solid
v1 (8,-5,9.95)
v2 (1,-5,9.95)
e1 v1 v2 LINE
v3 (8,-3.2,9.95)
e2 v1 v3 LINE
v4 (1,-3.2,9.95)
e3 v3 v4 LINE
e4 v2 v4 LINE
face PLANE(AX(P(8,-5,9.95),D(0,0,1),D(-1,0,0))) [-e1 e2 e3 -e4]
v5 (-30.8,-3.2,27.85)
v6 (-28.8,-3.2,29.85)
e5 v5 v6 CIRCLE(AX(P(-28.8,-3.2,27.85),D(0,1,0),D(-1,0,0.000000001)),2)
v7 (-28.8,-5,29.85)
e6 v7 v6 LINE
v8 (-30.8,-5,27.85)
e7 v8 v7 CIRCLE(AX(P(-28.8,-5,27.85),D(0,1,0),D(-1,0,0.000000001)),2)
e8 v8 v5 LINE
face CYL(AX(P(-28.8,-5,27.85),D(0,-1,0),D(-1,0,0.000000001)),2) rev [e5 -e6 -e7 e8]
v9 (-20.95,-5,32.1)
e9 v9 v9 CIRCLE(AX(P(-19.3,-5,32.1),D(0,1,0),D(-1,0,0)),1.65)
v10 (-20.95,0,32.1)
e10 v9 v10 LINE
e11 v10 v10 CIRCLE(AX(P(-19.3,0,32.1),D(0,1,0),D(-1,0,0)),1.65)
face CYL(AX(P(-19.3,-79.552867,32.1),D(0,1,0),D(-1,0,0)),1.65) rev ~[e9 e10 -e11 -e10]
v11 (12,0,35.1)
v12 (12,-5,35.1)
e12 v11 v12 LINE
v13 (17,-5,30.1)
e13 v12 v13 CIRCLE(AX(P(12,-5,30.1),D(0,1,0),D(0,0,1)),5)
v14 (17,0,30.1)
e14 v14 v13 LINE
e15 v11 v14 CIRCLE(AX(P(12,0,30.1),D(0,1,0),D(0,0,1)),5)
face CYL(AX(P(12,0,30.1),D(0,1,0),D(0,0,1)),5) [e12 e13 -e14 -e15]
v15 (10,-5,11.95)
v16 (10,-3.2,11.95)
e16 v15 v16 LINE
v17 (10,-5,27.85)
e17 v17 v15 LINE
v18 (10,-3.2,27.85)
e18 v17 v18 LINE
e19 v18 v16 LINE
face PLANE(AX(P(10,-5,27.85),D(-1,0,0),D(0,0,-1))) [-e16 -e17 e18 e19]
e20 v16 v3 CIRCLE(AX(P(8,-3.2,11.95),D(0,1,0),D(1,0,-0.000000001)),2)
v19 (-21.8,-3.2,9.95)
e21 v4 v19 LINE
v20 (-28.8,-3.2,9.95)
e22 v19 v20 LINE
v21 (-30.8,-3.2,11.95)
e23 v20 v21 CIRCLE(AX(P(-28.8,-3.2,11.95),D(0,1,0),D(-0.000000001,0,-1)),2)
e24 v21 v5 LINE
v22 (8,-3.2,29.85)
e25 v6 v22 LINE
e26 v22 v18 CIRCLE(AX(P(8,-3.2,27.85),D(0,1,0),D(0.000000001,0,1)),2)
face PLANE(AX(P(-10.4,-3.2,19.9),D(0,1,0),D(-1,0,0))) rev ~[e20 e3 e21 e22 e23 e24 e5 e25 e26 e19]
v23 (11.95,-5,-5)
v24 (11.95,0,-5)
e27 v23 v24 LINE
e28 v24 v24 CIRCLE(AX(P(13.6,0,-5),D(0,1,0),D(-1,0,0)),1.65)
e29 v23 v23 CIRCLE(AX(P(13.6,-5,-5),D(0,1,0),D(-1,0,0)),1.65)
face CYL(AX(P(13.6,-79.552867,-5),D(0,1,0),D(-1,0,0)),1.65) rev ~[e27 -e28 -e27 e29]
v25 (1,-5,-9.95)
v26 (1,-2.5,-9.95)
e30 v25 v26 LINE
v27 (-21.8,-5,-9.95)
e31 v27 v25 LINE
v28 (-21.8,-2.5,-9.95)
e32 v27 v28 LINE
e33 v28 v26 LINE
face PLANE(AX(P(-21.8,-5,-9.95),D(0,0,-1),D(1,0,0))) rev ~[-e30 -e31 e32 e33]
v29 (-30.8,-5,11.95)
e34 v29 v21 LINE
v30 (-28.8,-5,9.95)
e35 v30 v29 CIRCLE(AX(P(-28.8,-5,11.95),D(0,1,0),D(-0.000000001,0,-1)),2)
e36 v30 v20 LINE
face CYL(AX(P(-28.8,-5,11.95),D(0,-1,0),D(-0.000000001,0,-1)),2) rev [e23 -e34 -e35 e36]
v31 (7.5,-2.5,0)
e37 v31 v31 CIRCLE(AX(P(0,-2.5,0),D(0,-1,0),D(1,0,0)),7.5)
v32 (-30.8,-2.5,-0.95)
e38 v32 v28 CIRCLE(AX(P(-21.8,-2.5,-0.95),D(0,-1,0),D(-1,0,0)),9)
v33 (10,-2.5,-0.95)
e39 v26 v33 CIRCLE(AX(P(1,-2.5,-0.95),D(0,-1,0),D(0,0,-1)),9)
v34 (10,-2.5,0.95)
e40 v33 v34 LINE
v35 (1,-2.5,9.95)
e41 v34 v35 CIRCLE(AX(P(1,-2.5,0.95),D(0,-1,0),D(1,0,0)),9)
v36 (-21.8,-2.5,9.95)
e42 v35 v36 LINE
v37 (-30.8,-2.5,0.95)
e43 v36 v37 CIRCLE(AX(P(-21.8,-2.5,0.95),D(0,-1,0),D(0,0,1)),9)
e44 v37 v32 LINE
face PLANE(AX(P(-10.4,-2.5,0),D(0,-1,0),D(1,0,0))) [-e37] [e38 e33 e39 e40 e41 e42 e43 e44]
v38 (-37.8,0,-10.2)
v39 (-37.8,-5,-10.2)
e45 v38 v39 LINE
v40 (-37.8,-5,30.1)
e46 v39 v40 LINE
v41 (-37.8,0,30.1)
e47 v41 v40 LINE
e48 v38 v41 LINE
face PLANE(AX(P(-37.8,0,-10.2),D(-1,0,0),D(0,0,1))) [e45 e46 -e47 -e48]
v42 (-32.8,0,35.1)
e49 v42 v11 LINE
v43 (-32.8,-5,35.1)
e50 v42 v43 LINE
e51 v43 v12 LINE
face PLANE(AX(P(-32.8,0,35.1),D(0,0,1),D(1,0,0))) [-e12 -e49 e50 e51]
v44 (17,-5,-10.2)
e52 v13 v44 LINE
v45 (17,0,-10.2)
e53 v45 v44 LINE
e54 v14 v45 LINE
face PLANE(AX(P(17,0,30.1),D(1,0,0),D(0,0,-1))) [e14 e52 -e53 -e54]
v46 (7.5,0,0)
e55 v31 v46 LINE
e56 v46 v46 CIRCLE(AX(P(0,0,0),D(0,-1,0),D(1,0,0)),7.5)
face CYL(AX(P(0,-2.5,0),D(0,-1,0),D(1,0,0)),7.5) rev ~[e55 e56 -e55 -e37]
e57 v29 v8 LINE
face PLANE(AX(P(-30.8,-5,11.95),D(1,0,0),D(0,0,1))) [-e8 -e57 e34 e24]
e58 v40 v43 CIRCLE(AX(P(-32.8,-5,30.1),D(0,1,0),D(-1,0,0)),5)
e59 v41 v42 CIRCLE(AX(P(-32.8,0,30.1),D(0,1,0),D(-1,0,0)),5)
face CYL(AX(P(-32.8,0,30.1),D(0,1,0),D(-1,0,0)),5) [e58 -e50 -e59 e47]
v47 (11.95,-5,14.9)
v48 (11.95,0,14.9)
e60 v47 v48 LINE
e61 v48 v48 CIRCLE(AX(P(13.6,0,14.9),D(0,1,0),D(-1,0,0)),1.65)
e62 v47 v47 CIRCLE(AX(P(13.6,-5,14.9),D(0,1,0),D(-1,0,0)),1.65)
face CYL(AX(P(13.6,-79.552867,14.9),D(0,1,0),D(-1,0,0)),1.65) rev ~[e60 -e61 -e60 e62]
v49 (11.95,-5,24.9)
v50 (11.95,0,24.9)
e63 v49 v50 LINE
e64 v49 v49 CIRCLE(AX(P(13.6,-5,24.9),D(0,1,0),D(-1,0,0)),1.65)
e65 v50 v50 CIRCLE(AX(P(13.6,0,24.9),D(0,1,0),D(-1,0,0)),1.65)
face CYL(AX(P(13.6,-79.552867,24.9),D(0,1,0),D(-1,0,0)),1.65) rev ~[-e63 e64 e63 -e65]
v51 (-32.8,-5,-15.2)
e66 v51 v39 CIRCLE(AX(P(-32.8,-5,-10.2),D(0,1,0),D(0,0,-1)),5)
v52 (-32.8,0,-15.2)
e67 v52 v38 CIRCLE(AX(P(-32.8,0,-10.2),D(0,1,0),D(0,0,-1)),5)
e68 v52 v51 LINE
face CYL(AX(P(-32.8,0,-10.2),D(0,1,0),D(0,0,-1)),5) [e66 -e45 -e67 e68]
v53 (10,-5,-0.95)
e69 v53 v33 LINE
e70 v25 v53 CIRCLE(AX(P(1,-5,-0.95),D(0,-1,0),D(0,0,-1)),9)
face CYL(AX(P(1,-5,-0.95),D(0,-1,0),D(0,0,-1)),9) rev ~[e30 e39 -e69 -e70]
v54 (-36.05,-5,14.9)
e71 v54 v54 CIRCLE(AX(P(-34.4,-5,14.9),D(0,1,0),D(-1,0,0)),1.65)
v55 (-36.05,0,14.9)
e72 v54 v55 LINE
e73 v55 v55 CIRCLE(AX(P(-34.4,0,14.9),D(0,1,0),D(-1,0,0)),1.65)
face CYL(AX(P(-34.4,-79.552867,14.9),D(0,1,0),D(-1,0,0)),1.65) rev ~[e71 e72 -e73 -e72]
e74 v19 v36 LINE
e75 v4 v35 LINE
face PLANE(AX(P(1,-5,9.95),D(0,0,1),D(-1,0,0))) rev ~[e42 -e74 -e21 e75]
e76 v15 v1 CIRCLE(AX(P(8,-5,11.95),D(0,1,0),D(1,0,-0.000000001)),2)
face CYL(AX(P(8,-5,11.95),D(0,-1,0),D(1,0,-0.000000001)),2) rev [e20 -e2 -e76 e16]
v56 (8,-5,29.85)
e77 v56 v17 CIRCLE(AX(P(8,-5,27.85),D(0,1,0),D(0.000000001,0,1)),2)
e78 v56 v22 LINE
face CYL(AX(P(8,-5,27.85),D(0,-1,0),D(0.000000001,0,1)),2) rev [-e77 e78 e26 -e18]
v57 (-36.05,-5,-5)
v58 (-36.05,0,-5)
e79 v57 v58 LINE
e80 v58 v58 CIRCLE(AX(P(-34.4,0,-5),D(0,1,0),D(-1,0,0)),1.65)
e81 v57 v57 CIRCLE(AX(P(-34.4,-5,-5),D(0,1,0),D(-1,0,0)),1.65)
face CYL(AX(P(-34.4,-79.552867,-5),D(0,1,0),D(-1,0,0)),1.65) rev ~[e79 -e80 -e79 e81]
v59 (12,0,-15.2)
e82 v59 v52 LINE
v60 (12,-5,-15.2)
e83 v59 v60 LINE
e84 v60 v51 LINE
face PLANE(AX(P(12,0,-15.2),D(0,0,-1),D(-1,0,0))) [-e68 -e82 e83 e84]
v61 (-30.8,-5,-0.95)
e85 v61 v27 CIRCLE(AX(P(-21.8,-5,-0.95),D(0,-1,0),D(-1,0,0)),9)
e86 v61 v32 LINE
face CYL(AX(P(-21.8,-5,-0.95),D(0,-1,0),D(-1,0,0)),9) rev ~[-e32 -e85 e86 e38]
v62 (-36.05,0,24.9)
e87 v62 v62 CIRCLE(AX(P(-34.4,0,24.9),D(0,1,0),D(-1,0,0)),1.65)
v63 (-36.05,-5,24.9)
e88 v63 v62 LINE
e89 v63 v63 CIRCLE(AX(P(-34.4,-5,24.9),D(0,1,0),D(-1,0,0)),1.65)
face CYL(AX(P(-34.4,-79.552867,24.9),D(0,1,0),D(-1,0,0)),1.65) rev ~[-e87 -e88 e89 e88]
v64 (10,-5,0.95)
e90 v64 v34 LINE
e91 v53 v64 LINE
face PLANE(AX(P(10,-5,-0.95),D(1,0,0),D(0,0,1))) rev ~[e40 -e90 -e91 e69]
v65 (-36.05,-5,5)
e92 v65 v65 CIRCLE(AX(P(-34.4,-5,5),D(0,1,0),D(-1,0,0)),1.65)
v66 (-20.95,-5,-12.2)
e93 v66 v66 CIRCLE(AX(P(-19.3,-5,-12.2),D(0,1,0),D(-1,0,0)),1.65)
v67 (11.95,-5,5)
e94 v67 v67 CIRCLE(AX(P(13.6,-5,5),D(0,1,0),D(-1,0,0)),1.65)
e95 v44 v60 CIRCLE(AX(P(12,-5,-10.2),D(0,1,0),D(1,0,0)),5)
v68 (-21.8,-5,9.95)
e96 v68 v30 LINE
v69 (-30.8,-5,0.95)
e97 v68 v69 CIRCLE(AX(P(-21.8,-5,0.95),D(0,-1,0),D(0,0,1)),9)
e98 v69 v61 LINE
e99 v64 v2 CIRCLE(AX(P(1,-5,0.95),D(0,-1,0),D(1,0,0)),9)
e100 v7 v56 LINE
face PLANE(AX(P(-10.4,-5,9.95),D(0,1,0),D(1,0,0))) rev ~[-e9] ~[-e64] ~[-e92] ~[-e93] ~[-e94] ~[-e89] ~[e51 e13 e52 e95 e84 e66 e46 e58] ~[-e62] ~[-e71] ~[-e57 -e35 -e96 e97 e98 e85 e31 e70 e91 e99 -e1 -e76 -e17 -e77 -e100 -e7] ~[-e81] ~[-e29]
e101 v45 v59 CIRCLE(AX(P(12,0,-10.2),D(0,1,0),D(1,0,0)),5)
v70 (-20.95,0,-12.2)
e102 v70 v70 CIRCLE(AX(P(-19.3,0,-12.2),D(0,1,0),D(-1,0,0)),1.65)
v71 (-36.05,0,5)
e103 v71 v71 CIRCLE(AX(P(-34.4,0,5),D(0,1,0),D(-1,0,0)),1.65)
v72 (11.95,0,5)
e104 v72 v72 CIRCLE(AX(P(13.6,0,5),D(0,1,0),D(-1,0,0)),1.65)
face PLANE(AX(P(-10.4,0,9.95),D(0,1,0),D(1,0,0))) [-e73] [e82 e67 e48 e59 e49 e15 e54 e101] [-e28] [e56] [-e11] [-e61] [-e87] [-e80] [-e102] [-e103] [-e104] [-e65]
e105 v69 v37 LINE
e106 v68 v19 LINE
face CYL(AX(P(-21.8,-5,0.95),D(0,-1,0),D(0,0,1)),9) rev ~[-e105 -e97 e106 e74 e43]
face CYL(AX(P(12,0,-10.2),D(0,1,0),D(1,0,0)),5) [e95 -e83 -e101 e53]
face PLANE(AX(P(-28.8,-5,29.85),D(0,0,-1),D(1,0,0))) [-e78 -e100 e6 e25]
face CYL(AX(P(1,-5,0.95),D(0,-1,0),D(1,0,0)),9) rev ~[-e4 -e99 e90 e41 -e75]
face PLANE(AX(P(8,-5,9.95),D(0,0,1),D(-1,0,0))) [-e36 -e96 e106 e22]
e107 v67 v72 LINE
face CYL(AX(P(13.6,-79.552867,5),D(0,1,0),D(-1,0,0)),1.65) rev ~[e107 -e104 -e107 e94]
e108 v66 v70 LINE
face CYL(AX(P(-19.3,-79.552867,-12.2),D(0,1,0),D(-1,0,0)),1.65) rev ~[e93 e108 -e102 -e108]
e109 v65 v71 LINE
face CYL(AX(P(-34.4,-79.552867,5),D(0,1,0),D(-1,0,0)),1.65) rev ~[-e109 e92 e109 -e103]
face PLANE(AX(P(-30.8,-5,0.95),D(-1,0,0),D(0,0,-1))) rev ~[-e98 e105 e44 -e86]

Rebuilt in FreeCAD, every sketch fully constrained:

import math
import FreeCAD as App
import Part
import Sketcher
from FreeCAD import Vector
Q = App.Units.Quantity

doc = App.newDocument("Part")
params = doc.addObject("Spreadsheet::Sheet", "Params")
for row, (alias, value) in enumerate([
    ("sketch1_radius", "5 mm"),
    ("sketch1_width", "44.8 mm"),
    ("sketch1_height", "40.3 mm"),
    ("pad1_length", "5 mm"),
    ("sketch2_radius", "9 mm"),
    ("sketch2_width", "22.8 mm"),
    ("sketch2_height", "1.9 mm"),
    ("pocket1_length", "2.5 mm"),
    ("sketch3_radius", "2 mm"),
    ("sketch3_width", "36.8 mm"),
    ("sketch3_height", "15.9 mm"),
    ("pocket2_length", "1.8 mm"),
    ("sketch4_diameter", "15 mm"),
    ("sketch5_diameter", "3.3 mm"),
    ("hole_diameter", "3.3 mm"),
], start=1):
    params.set(f"A{row}", alias)
    params.set(f"B{row}", "=" + value)
    params.setAlias(f"B{row}", alias)

body = doc.addObject("PartDesign::Body", "Body")

# Sketch on XZ plane
sketch1 = doc.addObject("Sketcher::SketchObject", "Sketch")
body.addObject(sketch1)
sketch1.AttachmentSupport = (doc.XZ_Plane, [""])
sketch1.MapMode = "FlatFace"
sketch1.addGeometry([
    Part.LineSegment(Vector(-33, 35, 0), Vector(12, 35, 0)),  # 0
    Part.ArcOfCircle(Part.Circle(Vector(12, 30, 0), Vector(0, 0, 1), 5), math.radians(0), math.radians(90)),  # 1
    Part.LineSegment(Vector(17, 30, 0), Vector(17, -10, 0)),  # 2
    Part.ArcOfCircle(Part.Circle(Vector(12, -10, 0), Vector(0, 0, 1), 5), math.radians(-90), math.radians(0)),  # 3
    Part.LineSegment(Vector(12, -15, 0), Vector(-33, -15, 0)),  # 4
    Part.ArcOfCircle(Part.Circle(Vector(-33, -10, 0), Vector(0, 0, 1), 5), math.radians(180), math.radians(270)),  # 5
    Part.LineSegment(Vector(-38, -10, 0), Vector(-38, 30, 0)),  # 6
    Part.ArcOfCircle(Part.Circle(Vector(-33, 30, 0), Vector(0, 0, 1), 5), math.radians(90), math.radians(180)),  # 7
], False)
sketch1.addConstraint([
    Sketcher.Constraint("Tangent", 0, 2, 1, 2),
    Sketcher.Constraint("Tangent", 1, 1, 2, 1),
    Sketcher.Constraint("Tangent", 2, 2, 3, 2),
    Sketcher.Constraint("Tangent", 3, 1, 4, 1),
    Sketcher.Constraint("Tangent", 4, 2, 5, 2),
    Sketcher.Constraint("Tangent", 5, 1, 6, 1),
    Sketcher.Constraint("Tangent", 6, 2, 7, 2),
    Sketcher.Constraint("Tangent", 7, 1, 0, 1),
    Sketcher.Constraint("Horizontal", 0),
    Sketcher.Constraint("Vertical", 2),
    Sketcher.Constraint("Horizontal", 4),
    Sketcher.Constraint("Vertical", 6),
    Sketcher.Constraint("Equal", 1, 3),
    Sketcher.Constraint("Equal", 3, 5),
    Sketcher.Constraint("Equal", 5, 7),
    Sketcher.Constraint("Radius", 1, Q("5 mm")),
    Sketcher.Constraint("DistanceX", 0, 1, 0, 2, Q("44.8 mm")),
    Sketcher.Constraint("DistanceY", 2, 2, 2, 1, Q("40.3 mm")),
    Sketcher.Constraint("DistanceX", -1, 1, 1, 3, Q("12 mm")),
    Sketcher.Constraint("DistanceY", -1, 1, 1, 3, Q("30.1 mm")),
])
sketch1.setExpression("Constraints[15]", "Params.sketch1_radius")
sketch1.setExpression("Constraints[16]", "Params.sketch1_width")
sketch1.setExpression("Constraints[17]", "Params.sketch1_height")
pad1 = doc.addObject("PartDesign::Pad", "Pad")
body.addObject(pad1)
pad1.Profile = sketch1
pad1.setExpression("Length", "Params.pad1_length")

# Sketch on XZ plane
sketch2 = doc.addObject("Sketcher::SketchObject", "Sketch001")
body.addObject(sketch2)
sketch2.AttachmentSupport = (doc.XZ_Plane, [""])
sketch2.MapMode = "FlatFace"
sketch2.AttachmentOffset = App.Placement(Vector(0, 0, 5), App.Rotation())
sketch2.addGeometry([
    Part.LineSegment(Vector(1, 9.9, 0), Vector(-21.8, 9.9, 0)),  # 0
    Part.ArcOfCircle(Part.Circle(Vector(-21.8, 1, 0), Vector(0, 0, 1), 9), math.radians(90), math.radians(180)),  # 1
    Part.LineSegment(Vector(-30.8, 0.9, 0), Vector(-30.8, -0.9, 0)),  # 2
    Part.ArcOfCircle(Part.Circle(Vector(-21.8, -1, 0), Vector(0, 0, 1), 9), math.radians(180), math.radians(270)),  # 3
    Part.LineSegment(Vector(-21.8, -9.9, 0), Vector(1, -9.9, 0)),  # 4
    Part.ArcOfCircle(Part.Circle(Vector(1, -1, 0), Vector(0, 0, 1), 9), math.radians(-90), math.radians(0)),  # 5
    Part.LineSegment(Vector(10, -0.9, 0), Vector(10, 0.9, 0)),  # 6
    Part.ArcOfCircle(Part.Circle(Vector(1, 1, 0), Vector(0, 0, 1), 9), math.radians(0), math.radians(90)),  # 7
], False)
sketch2.addConstraint([
    Sketcher.Constraint("Tangent", 0, 2, 1, 1),
    Sketcher.Constraint("Tangent", 1, 2, 2, 1),
    Sketcher.Constraint("Tangent", 2, 2, 3, 1),
    Sketcher.Constraint("Tangent", 3, 2, 4, 1),
    Sketcher.Constraint("Tangent", 4, 2, 5, 1),
    Sketcher.Constraint("Tangent", 5, 2, 6, 1),
    Sketcher.Constraint("Tangent", 6, 2, 7, 1),
    Sketcher.Constraint("Tangent", 7, 2, 0, 1),
    Sketcher.Constraint("Horizontal", 0),
    Sketcher.Constraint("Vertical", 2),
    Sketcher.Constraint("Horizontal", 4),
    Sketcher.Constraint("Vertical", 6),
    Sketcher.Constraint("Equal", 1, 3),
    Sketcher.Constraint("Equal", 3, 5),
    Sketcher.Constraint("Equal", 5, 7),
    Sketcher.Constraint("Radius", 1, Q("9 mm")),
    Sketcher.Constraint("DistanceX", 0, 2, 0, 1, Q("22.8 mm")),
    Sketcher.Constraint("DistanceY", 2, 2, 2, 1, Q("1.9 mm")),
    Sketcher.Constraint("DistanceX", -1, 1, 5, 3, Q("1 mm")),
    Sketcher.Constraint("DistanceY", -1, 1, 1, 3, Q("0.95 mm")),
])
sketch2.setExpression("Constraints[15]", "Params.sketch2_radius")
sketch2.setExpression("Constraints[16]", "Params.sketch2_width")
sketch2.setExpression("Constraints[17]", "Params.sketch2_height")
pocket1 = doc.addObject("PartDesign::Pocket", "Pocket")
body.addObject(pocket1)
pocket1.Profile = sketch2
pocket1.setExpression("Length", "Params.pocket1_length")

# Sketch on XZ plane
sketch3 = doc.addObject("Sketcher::SketchObject", "Sketch002")
body.addObject(sketch3)
sketch3.AttachmentSupport = (doc.XZ_Plane, [""])
sketch3.MapMode = "FlatFace"
sketch3.AttachmentOffset = App.Placement(Vector(0, 0, 5), App.Rotation())
sketch3.addGeometry([
    Part.LineSegment(Vector(-28.8, 9.9, 0), Vector(8, 9.9, 0)),  # 0
    Part.ArcOfCircle(Part.Circle(Vector(8, 12, 0), Vector(0, 0, 1), 2), math.radians(-90), math.radians(0)),  # 1
    Part.LineSegment(Vector(10, 11.9, 0), Vector(10, 27.9, 0)),  # 2
    Part.ArcOfCircle(Part.Circle(Vector(8, 27.8, 0), Vector(0, 0, 1), 2), math.radians(0), math.radians(90)),  # 3
    Part.LineSegment(Vector(8, 29.9, 0), Vector(-28.8, 29.9, 0)),  # 4
    Part.ArcOfCircle(Part.Circle(Vector(-28.8, 27.8, 0), Vector(0, 0, 1), 2), math.radians(90), math.radians(180)),  # 5
    Part.LineSegment(Vector(-30.8, 27.9, 0), Vector(-30.8, 11.9, 0)),  # 6
    Part.ArcOfCircle(Part.Circle(Vector(-28.8, 12, 0), Vector(0, 0, 1), 2), math.radians(-180), math.radians(-90)),  # 7
], False)
sketch3.addConstraint([
    Sketcher.Constraint("Tangent", 0, 2, 1, 1),
    Sketcher.Constraint("Tangent", 1, 2, 2, 1),
    Sketcher.Constraint("Tangent", 2, 2, 3, 1),
    Sketcher.Constraint("Tangent", 3, 2, 4, 1),
    Sketcher.Constraint("Tangent", 4, 2, 5, 1),
    Sketcher.Constraint("Tangent", 5, 2, 6, 1),
    Sketcher.Constraint("Tangent", 6, 2, 7, 1),
    Sketcher.Constraint("Tangent", 7, 2, 0, 1),
    Sketcher.Constraint("Horizontal", 0),
    Sketcher.Constraint("Vertical", 2),
    Sketcher.Constraint("Horizontal", 4),
    Sketcher.Constraint("Vertical", 6),
    Sketcher.Constraint("Equal", 1, 3),
    Sketcher.Constraint("Equal", 3, 5),
    Sketcher.Constraint("Equal", 5, 7),
    Sketcher.Constraint("Radius", 1, Q("2 mm")),
    Sketcher.Constraint("DistanceX", 0, 1, 0, 2, Q("36.8 mm")),
    Sketcher.Constraint("DistanceY", 2, 1, 2, 2, Q("15.9 mm")),
    Sketcher.Constraint("DistanceX", -1, 1, 1, 3, Q("8 mm")),
    Sketcher.Constraint("DistanceY", -1, 1, 1, 3, Q("11.95 mm")),
])
sketch3.setExpression("Constraints[15]", "Params.sketch3_radius")
sketch3.setExpression("Constraints[16]", "Params.sketch3_width")
sketch3.setExpression("Constraints[17]", "Params.sketch3_height")
pocket2 = doc.addObject("PartDesign::Pocket", "Pocket001")
body.addObject(pocket2)
pocket2.Profile = sketch3
pocket2.setExpression("Length", "Params.pocket2_length")

# Sketch on XZ plane
sketch4 = doc.addObject("Sketcher::SketchObject", "Sketch003")
body.addObject(sketch4)
sketch4.AttachmentSupport = (doc.XZ_Plane, [""])
sketch4.MapMode = "FlatFace"
sketch4.AttachmentOffset = App.Placement(Vector(0, 0, 2.5), App.Rotation())
sketch4.addGeometry(Part.Circle(Vector(0, 0, 0), Vector(0, 0, 1), 8), False)
sketch4.addConstraint([
    Sketcher.Constraint("Coincident", 0, 3, -1, 1),
    Sketcher.Constraint("Diameter", 0, Q("15 mm")),
])
sketch4.setExpression("Constraints[1]", "Params.sketch4_diameter")
pocket3 = doc.addObject("PartDesign::Pocket", "Pocket002")
body.addObject(pocket3)
pocket3.Profile = sketch4
pocket3.Type = "ThroughAll"

# Sketch on XZ plane
sketch5 = doc.addObject("Sketcher::SketchObject", "Sketch004")
body.addObject(sketch5)
sketch5.AttachmentSupport = (doc.XZ_Plane, [""])
sketch5.MapMode = "FlatFace"
sketch5.AttachmentOffset = App.Placement(Vector(0, 0, 5), App.Rotation())
sketch5.addGeometry([
    Part.Circle(Vector(-34.4, 5, 0), Vector(0, 0, 1), 1.6),  # 0
    Part.Circle(Vector(-34.4, -5, 0), Vector(0, 0, 1), 1.6),  # 1
    Part.Circle(Vector(13.6, 5, 0), Vector(0, 0, 1), 1.6),  # 2
    Part.Circle(Vector(13.6, -5, 0), Vector(0, 0, 1), 1.6),  # 3
    Part.Circle(Vector(-19.3, -12.2, 0), Vector(0, 0, 1), 1.6),  # 4
    Part.Circle(Vector(-19.3, 32.1, 0), Vector(0, 0, 1), 1.6),  # 5
    Part.Circle(Vector(13.6, 24.9, 0), Vector(0, 0, 1), 1.6),  # 6
    Part.Circle(Vector(13.6, 14.9, 0), Vector(0, 0, 1), 1.6),  # 7
    Part.Circle(Vector(-34.4, 14.9, 0), Vector(0, 0, 1), 1.6),  # 8
    Part.Circle(Vector(-34.4, 24.9, 0), Vector(0, 0, 1), 1.6),  # 9
], False)
sketch5.addConstraint([
    Sketcher.Constraint("Equal", 0, 1),
    Sketcher.Constraint("Equal", 1, 2),
    Sketcher.Constraint("Equal", 2, 3),
    Sketcher.Constraint("Equal", 3, 4),
    Sketcher.Constraint("Equal", 4, 5),
    Sketcher.Constraint("Equal", 5, 6),
    Sketcher.Constraint("Equal", 6, 7),
    Sketcher.Constraint("Equal", 7, 8),
    Sketcher.Constraint("Equal", 8, 9),
    Sketcher.Constraint("Symmetric", 0, 3, 1, 3, -1),
    Sketcher.Constraint("Symmetric", 2, 3, 3, 3, -1),
    Sketcher.Constraint("Horizontal", 0, 3, 2, 3),
    Sketcher.Constraint("Horizontal", 7, 3, 8, 3),
    Sketcher.Constraint("Horizontal", 6, 3, 9, 3),
    Sketcher.Constraint("Vertical", 4, 3, 5, 3),
    Sketcher.Constraint("Vertical", 3, 3, 6, 3),
    Sketcher.Constraint("Vertical", 6, 3, 7, 3),
    Sketcher.Constraint("Vertical", 1, 3, 8, 3),
    Sketcher.Constraint("Vertical", 8, 3, 9, 3),
    Sketcher.Constraint("Diameter", 0, Q("3.3 mm")),
    Sketcher.Constraint("DistanceY", -1, 1, 0, 3, Q("5 mm")),
    Sketcher.Constraint("DistanceX", 0, 3, 2, 3, Q("48 mm")),
    Sketcher.Constraint("DistanceY", 7, 3, 6, 3, Q("10 mm")),
    Sketcher.Constraint("DistanceX", 0, 3, -1, 1, Q("34.4 mm")),
    Sketcher.Constraint("DistanceX", 4, 3, -1, 1, Q("19.3 mm")),
    Sketcher.Constraint("DistanceY", 4, 3, -1, 1, Q("12.2 mm")),
    Sketcher.Constraint("DistanceY", -1, 1, 5, 3, Q("32.1 mm")),
    Sketcher.Constraint("DistanceY", -1, 1, 6, 3, Q("24.9 mm")),
])
sketch5.setExpression("Constraints[19]", "Params.sketch5_diameter")
doc.recompute()
hole = doc.addObject("PartDesign::Hole", "Hole")
body.addObject(hole)
hole.Profile = sketch5
hole.ThreadType = "None"
hole.setExpression("Diameter", "Params.hole_diameter")
hole.DepthType = "ThroughAll"

doc.recompute()
